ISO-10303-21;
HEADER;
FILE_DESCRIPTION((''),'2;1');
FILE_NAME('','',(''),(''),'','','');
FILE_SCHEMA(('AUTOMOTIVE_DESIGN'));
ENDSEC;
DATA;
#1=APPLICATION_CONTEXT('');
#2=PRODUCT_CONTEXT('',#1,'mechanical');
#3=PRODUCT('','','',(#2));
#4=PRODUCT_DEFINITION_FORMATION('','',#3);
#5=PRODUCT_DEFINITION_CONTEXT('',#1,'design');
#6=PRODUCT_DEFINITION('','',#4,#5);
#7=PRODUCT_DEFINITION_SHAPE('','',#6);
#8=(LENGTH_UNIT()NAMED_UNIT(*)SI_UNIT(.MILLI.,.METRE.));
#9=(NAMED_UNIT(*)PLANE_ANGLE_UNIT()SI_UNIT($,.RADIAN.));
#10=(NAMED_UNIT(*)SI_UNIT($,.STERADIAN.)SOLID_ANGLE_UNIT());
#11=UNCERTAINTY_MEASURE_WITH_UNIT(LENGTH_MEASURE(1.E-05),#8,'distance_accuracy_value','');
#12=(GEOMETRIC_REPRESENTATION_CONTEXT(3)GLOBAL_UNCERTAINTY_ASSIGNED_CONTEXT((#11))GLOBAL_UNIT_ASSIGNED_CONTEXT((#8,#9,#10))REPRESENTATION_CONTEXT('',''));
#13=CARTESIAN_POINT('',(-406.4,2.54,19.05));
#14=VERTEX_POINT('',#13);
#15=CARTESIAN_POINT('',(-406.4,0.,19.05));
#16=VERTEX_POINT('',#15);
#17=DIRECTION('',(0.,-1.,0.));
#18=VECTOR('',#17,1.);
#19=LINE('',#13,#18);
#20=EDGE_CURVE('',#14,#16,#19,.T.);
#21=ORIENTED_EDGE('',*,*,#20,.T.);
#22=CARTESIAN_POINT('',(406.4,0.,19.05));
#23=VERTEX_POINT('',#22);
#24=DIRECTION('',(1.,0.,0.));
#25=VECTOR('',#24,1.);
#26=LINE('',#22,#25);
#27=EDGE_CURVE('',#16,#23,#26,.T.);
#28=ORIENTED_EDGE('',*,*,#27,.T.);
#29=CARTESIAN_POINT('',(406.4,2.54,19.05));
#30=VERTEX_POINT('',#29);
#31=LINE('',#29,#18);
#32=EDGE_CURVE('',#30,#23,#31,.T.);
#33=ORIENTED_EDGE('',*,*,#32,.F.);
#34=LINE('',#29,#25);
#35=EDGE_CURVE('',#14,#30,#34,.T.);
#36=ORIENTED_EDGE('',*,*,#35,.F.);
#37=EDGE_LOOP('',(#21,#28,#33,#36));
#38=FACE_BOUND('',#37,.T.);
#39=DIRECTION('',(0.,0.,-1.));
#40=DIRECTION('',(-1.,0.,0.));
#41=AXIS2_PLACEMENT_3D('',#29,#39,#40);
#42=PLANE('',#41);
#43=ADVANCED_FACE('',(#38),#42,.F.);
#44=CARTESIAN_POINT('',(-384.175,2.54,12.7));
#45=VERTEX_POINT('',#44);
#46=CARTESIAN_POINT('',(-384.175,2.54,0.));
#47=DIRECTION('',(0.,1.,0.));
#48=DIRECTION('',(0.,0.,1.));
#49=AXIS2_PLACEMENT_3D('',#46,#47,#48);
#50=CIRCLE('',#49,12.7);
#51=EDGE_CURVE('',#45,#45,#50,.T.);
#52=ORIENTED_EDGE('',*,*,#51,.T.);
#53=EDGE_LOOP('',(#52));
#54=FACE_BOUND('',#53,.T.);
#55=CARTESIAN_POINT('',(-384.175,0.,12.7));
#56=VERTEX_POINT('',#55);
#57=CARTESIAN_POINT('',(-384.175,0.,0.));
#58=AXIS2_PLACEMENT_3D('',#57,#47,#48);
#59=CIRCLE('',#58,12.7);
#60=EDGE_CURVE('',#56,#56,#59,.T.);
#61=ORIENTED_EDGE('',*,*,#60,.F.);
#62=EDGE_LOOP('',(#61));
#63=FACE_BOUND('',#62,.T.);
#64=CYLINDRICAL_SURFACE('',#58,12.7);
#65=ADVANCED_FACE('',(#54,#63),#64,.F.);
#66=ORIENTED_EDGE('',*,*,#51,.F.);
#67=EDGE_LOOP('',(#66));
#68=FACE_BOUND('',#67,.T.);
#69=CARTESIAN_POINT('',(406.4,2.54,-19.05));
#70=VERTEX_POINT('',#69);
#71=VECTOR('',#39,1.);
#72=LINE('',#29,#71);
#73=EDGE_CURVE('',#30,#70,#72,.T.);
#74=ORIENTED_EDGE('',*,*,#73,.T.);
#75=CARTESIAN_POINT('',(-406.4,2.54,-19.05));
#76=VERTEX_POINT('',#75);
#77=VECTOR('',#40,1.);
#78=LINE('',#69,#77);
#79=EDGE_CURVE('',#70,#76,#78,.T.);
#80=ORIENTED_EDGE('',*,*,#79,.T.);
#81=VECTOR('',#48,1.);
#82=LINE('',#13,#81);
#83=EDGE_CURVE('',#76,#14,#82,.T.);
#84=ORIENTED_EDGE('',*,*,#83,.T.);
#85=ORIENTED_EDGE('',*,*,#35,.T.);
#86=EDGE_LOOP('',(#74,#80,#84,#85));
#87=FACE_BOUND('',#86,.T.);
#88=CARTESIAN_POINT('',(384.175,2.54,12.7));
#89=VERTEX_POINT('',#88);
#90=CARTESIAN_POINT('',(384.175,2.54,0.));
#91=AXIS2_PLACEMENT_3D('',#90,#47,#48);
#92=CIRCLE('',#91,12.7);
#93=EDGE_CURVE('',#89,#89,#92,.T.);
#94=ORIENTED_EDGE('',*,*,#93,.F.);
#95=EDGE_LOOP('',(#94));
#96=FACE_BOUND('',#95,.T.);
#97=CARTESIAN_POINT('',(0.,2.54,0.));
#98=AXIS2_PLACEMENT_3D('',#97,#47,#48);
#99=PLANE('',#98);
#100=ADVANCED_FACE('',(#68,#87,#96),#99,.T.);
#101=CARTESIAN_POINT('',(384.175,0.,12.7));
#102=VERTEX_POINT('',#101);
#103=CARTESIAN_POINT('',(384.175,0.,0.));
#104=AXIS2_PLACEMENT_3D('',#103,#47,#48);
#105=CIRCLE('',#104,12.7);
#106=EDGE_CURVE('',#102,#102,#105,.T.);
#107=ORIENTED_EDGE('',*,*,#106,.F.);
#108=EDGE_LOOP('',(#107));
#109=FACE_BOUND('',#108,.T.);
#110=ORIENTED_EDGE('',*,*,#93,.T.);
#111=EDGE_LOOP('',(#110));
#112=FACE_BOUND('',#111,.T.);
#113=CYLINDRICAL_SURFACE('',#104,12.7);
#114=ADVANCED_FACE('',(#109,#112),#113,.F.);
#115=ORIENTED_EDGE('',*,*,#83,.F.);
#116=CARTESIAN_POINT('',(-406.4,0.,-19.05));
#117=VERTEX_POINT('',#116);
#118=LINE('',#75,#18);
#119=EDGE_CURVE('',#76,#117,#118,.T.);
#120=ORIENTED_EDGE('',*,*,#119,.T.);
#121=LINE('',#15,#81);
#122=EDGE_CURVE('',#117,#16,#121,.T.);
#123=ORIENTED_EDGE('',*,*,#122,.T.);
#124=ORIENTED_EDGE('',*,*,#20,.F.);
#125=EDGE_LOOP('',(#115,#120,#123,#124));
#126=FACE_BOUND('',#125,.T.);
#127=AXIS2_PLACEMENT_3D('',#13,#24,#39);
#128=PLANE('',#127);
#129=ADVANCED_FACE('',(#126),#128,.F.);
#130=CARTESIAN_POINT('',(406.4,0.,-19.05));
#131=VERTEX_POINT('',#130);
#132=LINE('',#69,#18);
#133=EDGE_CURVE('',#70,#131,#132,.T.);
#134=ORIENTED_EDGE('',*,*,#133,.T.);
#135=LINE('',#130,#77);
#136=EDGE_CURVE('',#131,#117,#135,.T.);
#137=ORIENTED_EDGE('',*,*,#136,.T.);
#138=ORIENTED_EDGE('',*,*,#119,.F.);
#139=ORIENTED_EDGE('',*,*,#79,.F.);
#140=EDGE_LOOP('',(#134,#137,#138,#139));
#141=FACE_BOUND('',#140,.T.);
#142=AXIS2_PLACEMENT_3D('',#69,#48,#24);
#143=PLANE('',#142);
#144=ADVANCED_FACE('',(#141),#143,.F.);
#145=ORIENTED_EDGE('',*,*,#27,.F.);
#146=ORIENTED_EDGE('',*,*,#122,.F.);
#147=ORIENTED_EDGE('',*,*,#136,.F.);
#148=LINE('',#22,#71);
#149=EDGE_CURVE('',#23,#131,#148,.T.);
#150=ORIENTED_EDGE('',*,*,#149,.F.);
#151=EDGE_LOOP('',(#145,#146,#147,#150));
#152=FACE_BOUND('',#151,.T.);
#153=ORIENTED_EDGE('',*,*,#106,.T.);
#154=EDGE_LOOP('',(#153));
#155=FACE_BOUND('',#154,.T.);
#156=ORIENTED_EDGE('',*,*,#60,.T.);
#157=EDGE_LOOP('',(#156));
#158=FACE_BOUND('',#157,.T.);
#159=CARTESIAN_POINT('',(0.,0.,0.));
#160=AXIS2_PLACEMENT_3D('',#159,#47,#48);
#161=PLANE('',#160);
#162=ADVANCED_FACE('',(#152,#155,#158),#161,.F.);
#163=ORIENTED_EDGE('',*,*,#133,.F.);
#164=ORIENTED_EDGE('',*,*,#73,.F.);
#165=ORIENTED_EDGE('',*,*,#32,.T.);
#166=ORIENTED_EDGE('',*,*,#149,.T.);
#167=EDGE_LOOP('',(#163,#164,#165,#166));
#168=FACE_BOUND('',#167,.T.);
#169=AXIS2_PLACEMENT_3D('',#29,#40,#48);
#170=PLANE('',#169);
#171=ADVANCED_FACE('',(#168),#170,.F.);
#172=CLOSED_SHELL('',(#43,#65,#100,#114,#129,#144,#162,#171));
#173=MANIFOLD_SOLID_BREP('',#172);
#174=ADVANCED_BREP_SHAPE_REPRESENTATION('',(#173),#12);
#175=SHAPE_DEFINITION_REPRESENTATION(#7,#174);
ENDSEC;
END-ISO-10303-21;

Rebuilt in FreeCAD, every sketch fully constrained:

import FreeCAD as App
import Part
import Sketcher

V = App.Vector
Q = App.Units.Quantity


def add_polygon(sketch, points):
    """Adds a closed chain of lines whose ends are joined by coincident constraints."""
    first, n = sketch.GeometryCount, len(points)
    for a, b in zip(points, points[1:] + points[:1]):
        sketch.addGeometry(Part.LineSegment(App.Vector(*a, 0), App.Vector(*b, 0)), False)
    for i in range(n):
        sketch.addConstraint(Sketcher.Constraint("Coincident", first + i, 2, first + (i + 1) % n, 1))

doc = App.newDocument("Part")
body = doc.addObject("PartDesign::Body", "Body")

# Sketch on XZ plane
sketch1 = doc.addObject("Sketcher::SketchObject", "Sketch")
body.addObject(sketch1)
sketch1.AttachmentSupport = (doc.XZ_Plane, [""])
sketch1.MapMode = "FlatFace"
add_polygon(sketch1, [(-406.4, -19.05), (-406.4, 19.05), (406.4, 19.05), (406.4, -19.05)])  # lines 0-3
sketch1.addConstraint([
    Sketcher.Constraint("Vertical", 0),
    Sketcher.Constraint("Horizontal", 1),
    Sketcher.Constraint("Vertical", 2),
    Sketcher.Constraint("Horizontal", 3),
    Sketcher.Constraint("Symmetric", 0, 2, 2, 2, -1, 1),
    Sketcher.Constraint("DistanceX", 1, 1, 1, 2, Q("32 in")),
    Sketcher.Constraint("DistanceY", 0, 1, 0, 2, Q("1.5 in")),
])
pad1 = doc.addObject("PartDesign::Pad", "Pad")
body.addObject(pad1)
pad1.Profile = sketch1
pad1.Length = Q("0.1 in")
pad1.Reversed = True

# Sketch on XZ plane
sketch2 = doc.addObject("Sketcher::SketchObject", "Sketch001")
body.addObject(sketch2)
sketch2.AttachmentSupport = (doc.XZ_Plane, [""])
sketch2.MapMode = "FlatFace"
sketch2.AttachmentOffset = App.Placement(V(0, 0, -0.1 * 25.4), App.Rotation())
sketch2.addGeometry([
    Part.Circle(V(-384.175, 0, 0), V(0, 0, 1), 12.7),
    Part.Circle(V(384.175, 0, 0), V(0, 0, 1), 12.7),
], False)
sketch2.addConstraint([
    Sketcher.Constraint("Equal", 0, 1),
    Sketcher.Constraint("Symmetric", 0, 3, 1, 3, -1, 1),
    Sketcher.Constraint("PointOnObject", 0, 3, -1),
    Sketcher.Constraint("Diameter", 0, Q("1 in")),
    Sketcher.Constraint("DistanceX", 0, 3, 1, 3, Q("30.25 in")),
])
pocket1 = doc.addObject("PartDesign::Pocket", "Pocket")
body.addObject(pocket1)
pocket1.Profile = sketch2
pocket1.Type = "ThroughAll"
pocket1.Midplane = True

doc.recompute()
